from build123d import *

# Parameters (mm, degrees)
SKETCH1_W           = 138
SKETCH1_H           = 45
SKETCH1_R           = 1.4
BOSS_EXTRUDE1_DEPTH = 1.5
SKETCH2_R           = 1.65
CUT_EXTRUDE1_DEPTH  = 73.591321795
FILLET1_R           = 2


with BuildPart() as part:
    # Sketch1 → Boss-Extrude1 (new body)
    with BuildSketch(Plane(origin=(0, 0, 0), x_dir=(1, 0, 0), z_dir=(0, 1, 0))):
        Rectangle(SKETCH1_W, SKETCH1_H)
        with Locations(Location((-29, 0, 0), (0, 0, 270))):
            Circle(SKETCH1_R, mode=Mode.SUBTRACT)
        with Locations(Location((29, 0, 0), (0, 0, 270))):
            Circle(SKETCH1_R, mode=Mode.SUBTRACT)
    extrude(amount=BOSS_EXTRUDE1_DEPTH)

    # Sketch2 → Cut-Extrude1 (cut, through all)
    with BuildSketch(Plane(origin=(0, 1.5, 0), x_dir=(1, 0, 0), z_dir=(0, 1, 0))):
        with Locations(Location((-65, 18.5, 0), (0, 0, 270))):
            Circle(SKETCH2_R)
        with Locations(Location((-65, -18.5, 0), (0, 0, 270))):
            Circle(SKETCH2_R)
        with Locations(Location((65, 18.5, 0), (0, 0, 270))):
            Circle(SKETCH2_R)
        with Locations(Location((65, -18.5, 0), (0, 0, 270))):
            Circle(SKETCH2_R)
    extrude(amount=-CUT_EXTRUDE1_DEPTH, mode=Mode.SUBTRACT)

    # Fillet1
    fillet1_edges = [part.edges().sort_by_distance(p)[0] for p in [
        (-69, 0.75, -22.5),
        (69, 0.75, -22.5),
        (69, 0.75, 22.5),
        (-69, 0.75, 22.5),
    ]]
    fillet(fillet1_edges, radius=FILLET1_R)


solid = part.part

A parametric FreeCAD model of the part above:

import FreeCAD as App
import Part
import Sketcher

V = App.Vector


def edges_at(feature, points):
    """Names of the edges that pass closest to the given points."""
    edges = feature.Shape.Edges
    near = lambda p: min(range(len(edges)), key=lambda i: edges[i].distToShape(Part.Vertex(*p))[0])
    return sorted({f"Edge{near(p) + 1}" for p in points})


def add_polygon(sketch, points):
    """Adds a closed chain of lines whose ends are joined by coincident constraints."""
    first, n = sketch.GeometryCount, len(points)
    for a, b in zip(points, points[1:] + points[:1]):
        sketch.addGeometry(Part.LineSegment(App.Vector(*a, 0), App.Vector(*b, 0)), False)
    for i in range(n):
        sketch.addConstraint(Sketcher.Constraint("Coincident", first + i, 2, first + (i + 1) % n, 1))

doc = App.newDocument("Part")
body = doc.addObject("PartDesign::Body", "Body")

sketch1 = body.newObject("Sketcher::SketchObject", "Sketch")
sketch1.AttachmentSupport = (doc.getObject("XZ_Plane"), [""])
sketch1.MapMode = "FlatFace"
add_polygon(sketch1, [(-69, -22.5), (-69, 22.5), (69, 22.5), (69, -22.5)])
sketch1.addGeometry(Part.Circle(V(-29, 0, 0), V(0, 0, 1), 1.4), False)
sketch1.addGeometry(Part.Circle(V(29, 0, 0), V(0, 0, 1), 1.4), False)
sketch1.addConstraint([
    Sketcher.Constraint("Vertical", 0),
    Sketcher.Constraint("Horizontal", 1),
    Sketcher.Constraint("Vertical", 2),
    Sketcher.Constraint("Horizontal", 3),
    Sketcher.Constraint("Equal", 4, 5),
    Sketcher.Constraint("Symmetric", 4, 3, 5, 3, -1, 1),
    Sketcher.Constraint("Symmetric", 0, 2, 2, 2, -1, 1),
    Sketcher.Constraint("PointOnObject", 4, 3, -1),
    Sketcher.Constraint("Diameter", 4, 2.8),
    Sketcher.Constraint("DistanceX", 1, 1, 1, 2, 138.0),
    Sketcher.Constraint("DistanceY", 0, 1, 0, 2, 45.0),
    Sketcher.Constraint("DistanceX", 4, 3, -1, 1, 29.0),
])
pad1 = body.newObject("PartDesign::Pad", "Pad")
pad1.Profile = sketch1
pad1.Length = 1.5
pad1.Reversed = True

sketch2 = body.newObject("Sketcher::SketchObject", "Sketch001")
sketch2.AttachmentSupport = (doc.getObject("XZ_Plane"), [""])
sketch2.MapMode = "FlatFace"
sketch2.AttachmentOffset = App.Placement(V(0, 0, -1.5), App.Rotation())
sketch2.addGeometry([
    Part.Circle(V(-65, -18.5, 0), V(0, 0, 1), 1.6),
    Part.Circle(V(-65, 18.5, 0), V(0, 0, 1), 1.6),
    Part.Circle(V(65, -18.5, 0), V(0, 0, 1), 1.6),
    Part.Circle(V(65, 18.5, 0), V(0, 0, 1), 1.6),
], False)
sketch2.addConstraint([
    Sketcher.Constraint("Equal", 0, 1),
    Sketcher.Constraint("Equal", 1, 2),
    Sketcher.Constraint("Equal", 2, 3),
    Sketcher.Constraint("Symmetric", 1, 3, 2, 3, -1, 1),
    Sketcher.Constraint("Symmetric", 0, 3, 3, 3, -1, 1),
    Sketcher.Constraint("Symmetric", 0, 3, 2, 3, -2),
    Sketcher.Constraint("Diameter", 0, 3.3),
    Sketcher.Constraint("DistanceX", 0, 3, -1, 1, 65.0),
    Sketcher.Constraint("DistanceY", 0, 3, 1, 3, 37.0),
])
pocket1 = body.newObject("PartDesign::Pocket", "Pocket")
pocket1.Profile = sketch2
pocket1.Type = "ThroughAll"
pocket1.Reversed = True
doc.recompute()

fillet = body.newObject("PartDesign::Fillet", "Fillet")
fillet.Base = (pocket1, edges_at(pocket1, [
    (-69, 0.75, -22.5),
    (69, 0.75, -22.5),
    (69, 0.75, 22.5),
    (-69, 0.75, 22.5),
]))
fillet.Radius = 2

doc.recompute()
